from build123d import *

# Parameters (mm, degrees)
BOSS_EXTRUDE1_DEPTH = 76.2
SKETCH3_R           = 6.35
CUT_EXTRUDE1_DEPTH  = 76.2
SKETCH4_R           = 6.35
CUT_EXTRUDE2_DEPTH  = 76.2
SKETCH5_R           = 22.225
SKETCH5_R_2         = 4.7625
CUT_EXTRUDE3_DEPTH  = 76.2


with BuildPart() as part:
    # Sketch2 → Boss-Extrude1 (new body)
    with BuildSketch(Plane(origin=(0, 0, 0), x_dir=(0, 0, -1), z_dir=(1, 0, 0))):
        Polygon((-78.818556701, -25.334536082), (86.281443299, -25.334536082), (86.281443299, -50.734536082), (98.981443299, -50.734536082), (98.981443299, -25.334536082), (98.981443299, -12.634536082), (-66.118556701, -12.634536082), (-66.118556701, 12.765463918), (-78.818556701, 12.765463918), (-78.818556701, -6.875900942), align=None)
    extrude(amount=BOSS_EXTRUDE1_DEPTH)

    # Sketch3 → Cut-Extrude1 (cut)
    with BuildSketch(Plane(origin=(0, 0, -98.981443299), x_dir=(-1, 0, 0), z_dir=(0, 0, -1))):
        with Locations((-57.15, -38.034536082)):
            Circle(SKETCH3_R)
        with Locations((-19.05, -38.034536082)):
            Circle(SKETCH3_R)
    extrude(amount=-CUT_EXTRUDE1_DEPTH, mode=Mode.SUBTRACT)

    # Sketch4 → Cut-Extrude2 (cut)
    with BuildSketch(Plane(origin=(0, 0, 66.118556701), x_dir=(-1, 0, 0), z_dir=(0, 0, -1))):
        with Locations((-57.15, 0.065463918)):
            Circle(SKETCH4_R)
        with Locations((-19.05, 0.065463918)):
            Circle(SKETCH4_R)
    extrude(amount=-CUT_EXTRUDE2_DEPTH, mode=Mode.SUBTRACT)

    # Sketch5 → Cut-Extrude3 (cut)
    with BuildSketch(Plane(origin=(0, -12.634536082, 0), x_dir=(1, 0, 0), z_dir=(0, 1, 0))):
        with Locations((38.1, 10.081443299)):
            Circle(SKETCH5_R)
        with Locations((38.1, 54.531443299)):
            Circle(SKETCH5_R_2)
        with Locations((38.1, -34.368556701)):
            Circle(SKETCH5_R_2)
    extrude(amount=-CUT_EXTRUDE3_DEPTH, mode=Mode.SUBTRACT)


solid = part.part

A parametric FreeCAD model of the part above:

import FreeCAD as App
import Part
import Sketcher

V = App.Vector
Q = App.Units.Quantity

doc = App.newDocument("Part")
body = doc.addObject("PartDesign::Body", "Body")

sketch1 = body.newObject("Sketcher::SketchObject", "Sketch")
sketch1.AttachmentSupport = (doc.getObject("YZ_Plane"), [""])
sketch1.MapMode = "FlatFace"
sketch1.addGeometry(Part.LineSegment(V(-25, 79, 0), V(-25, -86, 0)), False)
sketch1.addGeometry(Part.LineSegment(V(-25, -86, 0), V(-51, -86, 0)), False)
sketch1.addGeometry(Part.LineSegment(V(-51, -86, 0), V(-51, -99, 0)), False)
sketch1.addGeometry(Part.LineSegment(V(-51, -99, 0), V(-13, -99, 0)), False)
sketch1.addGeometry(Part.LineSegment(V(-13, -99, 0), V(-13, 66, 0)), False)
sketch1.addGeometry(Part.LineSegment(V(-13, 66, 0), V(13, 66, 0)), False)
sketch1.addGeometry(Part.LineSegment(V(13, 66, 0), V(13, 79, 0)), False)
sketch1.addGeometry(Part.LineSegment(V(13, 79, 0), V(-25, 79, 0)), False)
sketch1.addConstraint(Sketcher.Constraint("Coincident", 0, 2, 1, 1))
sketch1.addConstraint(Sketcher.Constraint("Coincident", 1, 2, 2, 1))
sketch1.addConstraint(Sketcher.Constraint("Coincident", 2, 2, 3, 1))
sketch1.addConstraint(Sketcher.Constraint("Coincident", 3, 2, 4, 1))
sketch1.addConstraint(Sketcher.Constraint("Coincident", 4, 2, 5, 1))
sketch1.addConstraint(Sketcher.Constraint("Coincident", 5, 2, 6, 1))
sketch1.addConstraint(Sketcher.Constraint("Coincident", 6, 2, 7, 1))
sketch1.addConstraint(Sketcher.Constraint("Coincident", 7, 2, 0, 1))
sketch1.addConstraint(Sketcher.Constraint("Vertical", 0))
sketch1.addConstraint(Sketcher.Constraint("Horizontal", 1))
sketch1.addConstraint(Sketcher.Constraint("Vertical", 2))
sketch1.addConstraint(Sketcher.Constraint("Horizontal", 3))
sketch1.addConstraint(Sketcher.Constraint("Vertical", 4))
sketch1.addConstraint(Sketcher.Constraint("Horizontal", 5))
sketch1.addConstraint(Sketcher.Constraint("Vertical", 6))
sketch1.addConstraint(Sketcher.Constraint("Horizontal", 7))
sketch1.addConstraint(Sketcher.Constraint("Equal", 1, 5))
sketch1.addConstraint(Sketcher.Constraint("Equal", 0, 4))
sketch1.addConstraint(Sketcher.Constraint("DistanceX", 1, 2, 1, 1, Q("1 in")))
sketch1.addConstraint(Sketcher.Constraint("DistanceX", 3, 1, 3, 2, Q("1.5 in")))
sketch1.addConstraint(Sketcher.Constraint("DistanceY", 0, 2, 0, 1, Q("6.5 in")))
sketch1.addConstraint(Sketcher.Constraint("DistanceY", 2, 2, 2, 1, Q("0.5 in")))
sketch1.addConstraint(Sketcher.Constraint("DistanceX", 0, 2, -1, 1, 25.334536))
sketch1.addConstraint(Sketcher.Constraint("DistanceY", 0, 2, -1, 1, 86.281443))
pad1 = body.newObject("PartDesign::Pad", "Pad")
pad1.Profile = sketch1
pad1.Length = Q("3 in")

sketch2 = body.newObject("Sketcher::SketchObject", "Sketch001")
sketch2.AttachmentSupport = (doc.getObject("XY_Plane"), [""])
sketch2.MapMode = "FlatFace"
sketch2.AttachmentOffset = App.Placement(V(0, 0, -98.981443), App.Rotation())
sketch2.addGeometry(Part.Circle(V(57, -38, 0), V(0, 0, 1), 6), False)
sketch2.addGeometry(Part.Circle(V(19, -38, 0), V(0, 0, 1), 6), False)
sketch2.addConstraint(Sketcher.Constraint("Equal", 0, 1))
sketch2.addConstraint(Sketcher.Constraint("Horizontal", 0, 3, 1, 3))
sketch2.addConstraint(Sketcher.Constraint("Diameter", 0, Q("0.5 in")))
sketch2.addConstraint(Sketcher.Constraint("DistanceX", 1, 3, 0, 3, Q("1.5 in")))
sketch2.addConstraint(Sketcher.Constraint("DistanceX", -1, 1, 0, 3, Q("2.25 in")))
sketch2.addConstraint(Sketcher.Constraint("DistanceY", 0, 3, -1, 1, 38.034536))
pocket1 = body.newObject("PartDesign::Pocket", "Pocket")
pocket1.Profile = sketch2
pocket1.Length = Q("3 in")
pocket1.Reversed = True

sketch3 = body.newObject("Sketcher::SketchObject", "Sketch002")
sketch3.AttachmentSupport = (doc.getObject("XY_Plane"), [""])
sketch3.MapMode = "FlatFace"
sketch3.AttachmentOffset = App.Placement(V(0, 0, 66.118557), App.Rotation())
sketch3.addGeometry(Part.Circle(V(57, 0, 0), V(0, 0, 1), 6), False)
sketch3.addGeometry(Part.Circle(V(19, 0, 0), V(0, 0, 1), 6), False)
sketch3.addConstraint(Sketcher.Constraint("Equal", 0, 1))
sketch3.addConstraint(Sketcher.Constraint("Horizontal", 0, 3, 1, 3))
sketch3.addConstraint(Sketcher.Constraint("Diameter", 0, Q("0.5 in")))
sketch3.addConstraint(Sketcher.Constraint("DistanceX", 1, 3, 0, 3, Q("1.5 in")))
sketch3.addConstraint(Sketcher.Constraint("DistanceX", -1, 1, 0, 3, Q("2.25 in")))
sketch3.addConstraint(Sketcher.Constraint("DistanceY", -1, 1, 0, 3, 0.065464))
pocket2 = body.newObject("PartDesign::Pocket", "Pocket001")
pocket2.Profile = sketch3
pocket2.Length = Q("3 in")
pocket2.Reversed = True

sketch4 = body.newObject("Sketcher::SketchObject", "Sketch003")
sketch4.AttachmentSupport = (doc.getObject("XZ_Plane"), [""])
sketch4.MapMode = "FlatFace"
sketch4.AttachmentOffset = App.Placement(V(0, 0, 12.634536), App.Rotation())
sketch4.addGeometry(Part.Circle(V(38.1, -10.1, 0), V(0, 0, 1), 22.2), False)
sketch4.addGeometry(Part.Circle(V(38.1, -54.5, 0), V(0, 0, 1), 4.8), False)
sketch4.addGeometry(Part.Circle(V(38.1, 34.4, 0), V(0, 0, 1), 4.8), False)
sketch4.addConstraint(Sketcher.Constraint("Equal", 1, 2))
sketch4.addConstraint(Sketcher.Constraint("Vertical", 0, 3, 1, 3))
sketch4.addConstraint(Sketcher.Constraint("Vertical", 1, 3, 2, 3))
sketch4.addConstraint(Sketcher.Constraint("Diameter", 0, Q("1.75 in")))
sketch4.addConstraint(Sketcher.Constraint("Diameter", 1, Q("0.375 in")))
sketch4.addConstraint(Sketcher.Constraint("DistanceX", -1, 1, 0, 3, Q("1.5 in")))
sketch4.addConstraint(Sketcher.Constraint("DistanceY", 1, 3, 2, 3, Q("3.5 in")))
sketch4.addConstraint(Sketcher.Constraint("DistanceY", 1, 3, 0, 3, Q("1.75 in")))
sketch4.addConstraint(Sketcher.Constraint("DistanceY", 0, 3, -1, 1, 10.081443))
pocket3 = body.newObject("PartDesign::Pocket", "Pocket002")
pocket3.Profile = sketch4
pocket3.Length = Q("3 in")
pocket3.Reversed = True

doc.recompute()
